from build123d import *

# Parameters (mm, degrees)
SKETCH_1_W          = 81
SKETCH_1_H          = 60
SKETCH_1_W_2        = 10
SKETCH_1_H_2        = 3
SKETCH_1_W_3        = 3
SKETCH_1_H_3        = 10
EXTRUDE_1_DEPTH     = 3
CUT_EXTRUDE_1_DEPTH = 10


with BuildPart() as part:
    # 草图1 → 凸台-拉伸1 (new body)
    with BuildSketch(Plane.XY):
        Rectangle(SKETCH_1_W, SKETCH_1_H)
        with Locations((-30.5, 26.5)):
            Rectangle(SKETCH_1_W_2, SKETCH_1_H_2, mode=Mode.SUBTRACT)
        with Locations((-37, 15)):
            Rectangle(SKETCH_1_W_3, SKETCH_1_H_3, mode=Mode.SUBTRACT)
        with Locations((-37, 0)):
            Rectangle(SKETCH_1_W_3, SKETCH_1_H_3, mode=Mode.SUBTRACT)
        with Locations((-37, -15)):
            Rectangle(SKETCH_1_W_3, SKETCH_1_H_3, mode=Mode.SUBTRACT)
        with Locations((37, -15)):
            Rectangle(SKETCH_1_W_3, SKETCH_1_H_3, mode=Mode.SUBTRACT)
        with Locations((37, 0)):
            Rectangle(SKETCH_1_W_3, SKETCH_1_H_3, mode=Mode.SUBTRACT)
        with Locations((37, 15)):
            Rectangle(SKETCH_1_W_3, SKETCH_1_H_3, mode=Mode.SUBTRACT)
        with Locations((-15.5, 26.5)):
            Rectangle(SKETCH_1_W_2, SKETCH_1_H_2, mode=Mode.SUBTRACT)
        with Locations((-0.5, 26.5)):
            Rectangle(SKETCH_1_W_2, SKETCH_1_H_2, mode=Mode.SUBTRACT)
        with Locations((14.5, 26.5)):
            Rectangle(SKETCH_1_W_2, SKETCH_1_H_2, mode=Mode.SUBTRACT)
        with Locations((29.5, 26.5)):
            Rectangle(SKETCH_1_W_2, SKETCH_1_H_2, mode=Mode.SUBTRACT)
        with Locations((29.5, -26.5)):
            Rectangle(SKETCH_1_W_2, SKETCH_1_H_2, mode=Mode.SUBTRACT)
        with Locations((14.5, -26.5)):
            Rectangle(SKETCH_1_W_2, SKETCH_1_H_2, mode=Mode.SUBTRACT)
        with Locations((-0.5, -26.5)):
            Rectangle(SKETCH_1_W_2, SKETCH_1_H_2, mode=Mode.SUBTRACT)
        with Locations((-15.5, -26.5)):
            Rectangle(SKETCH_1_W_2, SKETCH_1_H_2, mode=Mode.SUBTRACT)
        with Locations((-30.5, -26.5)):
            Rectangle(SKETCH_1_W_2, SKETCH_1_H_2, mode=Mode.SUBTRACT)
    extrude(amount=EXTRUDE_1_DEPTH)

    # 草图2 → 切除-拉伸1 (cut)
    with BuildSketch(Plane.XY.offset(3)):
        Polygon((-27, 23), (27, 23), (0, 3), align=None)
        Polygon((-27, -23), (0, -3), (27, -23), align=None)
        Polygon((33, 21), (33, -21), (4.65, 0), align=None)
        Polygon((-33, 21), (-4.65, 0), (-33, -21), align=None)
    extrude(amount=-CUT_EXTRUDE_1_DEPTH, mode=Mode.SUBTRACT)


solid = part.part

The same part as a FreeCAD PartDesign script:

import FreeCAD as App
import Part
import Sketcher

V = App.Vector
Q = App.Units.Quantity


def add_polygon(sketch, points):
    """Adds a closed chain of lines whose ends are joined by coincident constraints."""
    first, n = sketch.GeometryCount, len(points)
    for a, b in zip(points, points[1:] + points[:1]):
        sketch.addGeometry(Part.LineSegment(App.Vector(*a, 0), App.Vector(*b, 0)), False)
    for i in range(n):
        sketch.addConstraint(Sketcher.Constraint("Coincident", first + i, 2, first + (i + 1) % n, 1))

doc = App.newDocument("Part")
body = doc.addObject("PartDesign::Body", "Body")

# Sketch on XY plane
sketch1 = body.newObject("Sketcher::SketchObject", "Sketch")
sketch1.AttachmentSupport = (doc.getObject("XY_Plane"), [""])
sketch1.MapMode = "FlatFace"
add_polygon(sketch1, [(-40.5, 30), (-40.5, -30), (40.5, -30), (40.5, 30)])  # lines 0-3
add_polygon(sketch1, [(-25.5, -28), (-35.5, -28), (-35.5, -25), (-25.5, -25)])  # lines 4-7
add_polygon(sketch1, [(-35.5, -20), (-38.5, -20), (-38.5, -10), (-35.5, -10)])  # lines 8-11
add_polygon(sketch1, [(-10.5, -28), (-20.5, -28), (-20.5, -25), (-10.5, -25)])  # lines 12-15
add_polygon(sketch1, [(4.5, -28), (-5.5, -28), (-5.5, -25), (4.5, -25)])  # lines 16-19
add_polygon(sketch1, [(19.5, -28), (9.5, -28), (9.5, -25), (19.5, -25)])  # lines 20-23
add_polygon(sketch1, [(34.5, -28), (24.5, -28), (24.5, -25), (34.5, -25)])  # lines 24-27
add_polygon(sketch1, [(38.5, -20), (35.5, -20), (35.5, -10), (38.5, -10)])  # lines 28-31
add_polygon(sketch1, [(-35.5, -5), (-38.5, -5), (-38.5, 5), (-35.5, 5)])  # lines 32-35
add_polygon(sketch1, [(-35.5, 10), (-38.5, 10), (-38.5, 20), (-35.5, 20)])  # lines 36-39
add_polygon(sketch1, [(-25.5, 25), (-35.5, 25), (-35.5, 28), (-25.5, 28)])  # lines 40-43
add_polygon(sketch1, [(-10.5, 25), (-20.5, 25), (-20.5, 28), (-10.5, 28)])  # lines 44-47
add_polygon(sketch1, [(4.5, 25), (-5.5, 25), (-5.5, 28), (4.5, 28)])  # lines 48-51
add_polygon(sketch1, [(38.5, -5), (35.5, -5), (35.5, 5), (38.5, 5)])  # lines 52-55
add_polygon(sketch1, [(19.5, 25), (9.5, 25), (9.5, 28), (19.5, 28)])  # lines 56-59
add_polygon(sketch1, [(38.5, 10), (35.5, 10), (35.5, 20), (38.5, 20)])  # lines 60-63
add_polygon(sketch1, [(34.5, 25), (24.5, 25), (24.5, 28), (34.5, 28)])  # lines 64-67
sketch1.addConstraint([
    Sketcher.Constraint("Vertical", 0),
    Sketcher.Constraint("Horizontal", 1),
    Sketcher.Constraint("Vertical", 2),
    Sketcher.Constraint("Horizontal", 3),
    Sketcher.Constraint("Horizontal", 4),
    Sketcher.Constraint("Vertical", 5),
    Sketcher.Constraint("Horizontal", 6),
    Sketcher.Constraint("Vertical", 7),
    Sketcher.Constraint("Horizontal", 8),
    Sketcher.Constraint("Vertical", 9),
    Sketcher.Constraint("Horizontal", 10),
    Sketcher.Constraint("Vertical", 11),
    Sketcher.Constraint("Horizontal", 12),
    Sketcher.Constraint("Vertical", 13),
    Sketcher.Constraint("Horizontal", 14),
    Sketcher.Constraint("Vertical", 15),
    Sketcher.Constraint("Horizontal", 16),
    Sketcher.Constraint("Vertical", 17),
    Sketcher.Constraint("Horizontal", 18),
    Sketcher.Constraint("Vertical", 19),
    Sketcher.Constraint("Horizontal", 20),
    Sketcher.Constraint("Vertical", 21),
    Sketcher.Constraint("Horizontal", 22),
    Sketcher.Constraint("Vertical", 23),
    Sketcher.Constraint("Horizontal", 24),
    Sketcher.Constraint("Vertical", 25),
    Sketcher.Constraint("Horizontal", 26),
    Sketcher.Constraint("Vertical", 27),
    Sketcher.Constraint("Horizontal", 28),
    Sketcher.Constraint("Vertical", 29),
    Sketcher.Constraint("Horizontal", 30),
    Sketcher.Constraint("Vertical", 31),
    Sketcher.Constraint("Horizontal", 32),
    Sketcher.Constraint("Vertical", 33),
    Sketcher.Constraint("Horizontal", 34),
    Sketcher.Constraint("Vertical", 35),
    Sketcher.Constraint("Horizontal", 36),
    Sketcher.Constraint("Vertical", 37),
    Sketcher.Constraint("Horizontal", 38),
    Sketcher.Constraint("Vertical", 39),
    Sketcher.Constraint("Horizontal", 40),
    Sketcher.Constraint("Vertical", 41),
    Sketcher.Constraint("Horizontal", 42),
    Sketcher.Constraint("Vertical", 43),
    Sketcher.Constraint("Horizontal", 44),
    Sketcher.Constraint("Vertical", 45),
    Sketcher.Constraint("Horizontal", 46),
    Sketcher.Constraint("Vertical", 47),
    Sketcher.Constraint("Horizontal", 48),
    Sketcher.Constraint("Vertical", 49),
    Sketcher.Constraint("Horizontal", 50),
    Sketcher.Constraint("Vertical", 51),
    Sketcher.Constraint("Horizontal", 52),
    Sketcher.Constraint("Vertical", 53),
    Sketcher.Constraint("Horizontal", 54),
    Sketcher.Constraint("Vertical", 55),
    Sketcher.Constraint("Horizontal", 56),
    Sketcher.Constraint("Vertical", 57),
    Sketcher.Constraint("Horizontal", 58),
    Sketcher.Constraint("Vertical", 59),
    Sketcher.Constraint("Horizontal", 60),
    Sketcher.Constraint("Vertical", 61),
    Sketcher.Constraint("Horizontal", 62),
    Sketcher.Constraint("Vertical", 63),
    Sketcher.Constraint("Horizontal", 64),
    Sketcher.Constraint("Vertical", 65),
    Sketcher.Constraint("Horizontal", 66),
    Sketcher.Constraint("Vertical", 67),
    Sketcher.Constraint("Symmetric", 0, 2, 2, 2, -1, 1),
    Sketcher.Constraint("Symmetric", 30, 2, 36, 2, -1, 1),
    Sketcher.Constraint("Symmetric", 28, 2, 38, 2, -1, 1),
    Sketcher.Constraint("Symmetric", 34, 2, 52, 2, -1, 1),
    Sketcher.Constraint("Symmetric", 32, 2, 54, 2, -1, 1),
    Sketcher.Constraint("Symmetric", 10, 2, 60, 2, -1, 1),
    Sketcher.Constraint("Symmetric", 8, 2, 62, 2, -1, 1),
    Sketcher.Constraint("Symmetric", 11, 2, 28, 2, -2),
    Sketcher.Constraint("Symmetric", 9, 2, 30, 2, -2),
    Sketcher.Constraint("Symmetric", 5, 2, 40, 2, -1),
    Sketcher.Constraint("Symmetric", 7, 2, 42, 2, -1),
    Sketcher.Constraint("Symmetric", 13, 2, 44, 2, -1),
    Sketcher.Constraint("Symmetric", 15, 2, 46, 2, -1),
    Sketcher.Constraint("Symmetric", 17, 2, 48, 2, -1),
    Sketcher.Constraint("Symmetric", 19, 2, 50, 2, -1),
    Sketcher.Constraint("Symmetric", 21, 2, 56, 2, -1),
    Sketcher.Constraint("Symmetric", 23, 2, 58, 2, -1),
    Sketcher.Constraint("Symmetric", 25, 2, 64, 2, -1),
    Sketcher.Constraint("Symmetric", 27, 2, 66, 2, -1),
    Sketcher.Constraint("Horizontal", 7, 2, 12, 2),
    Sketcher.Constraint("Horizontal", 6, 2, 13, 2),
    Sketcher.Constraint("Horizontal", 15, 2, 16, 2),
    Sketcher.Constraint("Horizontal", 14, 2, 17, 2),
    Sketcher.Constraint("Horizontal", 19, 2, 20, 2),
    Sketcher.Constraint("Horizontal", 18, 2, 21, 2),
    Sketcher.Constraint("Horizontal", 23, 2, 24, 2),
    Sketcher.Constraint("Horizontal", 22, 2, 25, 2),
    Sketcher.Constraint("Horizontal", 35, 2, 52, 2),
    Sketcher.Constraint("Vertical", 5, 2, 10, 2),
    Sketcher.Constraint("Vertical", 9, 2, 32, 2),
    Sketcher.Constraint("Vertical", 11, 2, 34, 2),
    Sketcher.Constraint("Equal", 6, 12),
    Sketcher.Constraint("Equal", 14, 16),
    Sketcher.Constraint("Equal", 18, 20),
    Sketcher.Constraint("Equal", 22, 24),
    Sketcher.Constraint("Equal", 62, 5),
    Sketcher.Constraint("Equal", 66, 9),
    Sketcher.Constraint("Equal", 31, 33),
    Sketcher.Constraint("DistanceX", 1, 1, 1, 2, Q("81 mm")),
    Sketcher.Constraint("DistanceX", 4, 2, 4, 1, Q("10 mm")),
    Sketcher.Constraint("DistanceX", 8, 2, 8, 1, Q("3 mm")),
    Sketcher.Constraint("DistanceY", 0, 2, 0, 1, Q("60 mm")),
    Sketcher.Constraint("DistanceY", 4, 2, -1, 1, Q("28 mm")),
    Sketcher.Constraint("DistanceY", 8, 2, -1, 1, Q("20 mm")),
    Sketcher.Constraint("DistanceX", 4, 2, -1, 1, Q("35.5 mm")),
    Sketcher.Constraint("DistanceX", 12, 2, -1, 1, Q("20.5 mm")),
    Sketcher.Constraint("DistanceX", 16, 2, -1, 1, Q("5.5 mm")),
    Sketcher.Constraint("DistanceX", -1, 1, 20, 2, Q("9.5 mm")),
    Sketcher.Constraint("DistanceX", -1, 1, 24, 2, Q("24.5 mm")),
])
pad1 = body.newObject("PartDesign::Pad", "Pad")
pad1.Profile = sketch1
pad1.Length = 3

# Sketch on XY plane
sketch2 = body.newObject("Sketcher::SketchObject", "Sketch001")
sketch2.AttachmentSupport = (doc.getObject("XY_Plane"), [""])
sketch2.MapMode = "FlatFace"
sketch2.AttachmentOffset = App.Placement(V(0, 0, 3), App.Rotation())
add_polygon(sketch2, [(27, 23), (-27, 23), (0, 3)])  # lines 0-2
add_polygon(sketch2, [(0, -3), (-27, -23), (27, -23)])  # lines 3-5
add_polygon(sketch2, [(33, -21), (33, 21), (4.65, 0)])  # lines 6-8
add_polygon(sketch2, [(-4.65, 0), (-33, 21), (-33, -21)])  # lines 9-11
sketch2.addConstraint([
    Sketcher.Constraint("Horizontal", 0),
    Sketcher.Constraint("Horizontal", 4),
    Sketcher.Constraint("Vertical", 6),
    Sketcher.Constraint("Vertical", 10),
    Sketcher.Constraint("Symmetric", 2, 2, 3, 2, -1, 1),
    Sketcher.Constraint("Symmetric", 1, 2, 5, 2, -1, 1),
    Sketcher.Constraint("Symmetric", 8, 2, 9, 2, -1, 1),
    Sketcher.Constraint("Symmetric", 7, 2, 11, 2, -1, 1),
    Sketcher.Constraint("PointOnObject", 1, 2, -2),
    Sketcher.Constraint("PointOnObject", 7, 2, -1),
    Sketcher.Constraint("Parallel", 1, 5),
    Sketcher.Constraint("Parallel", 3, 7),
    Sketcher.Constraint("Parallel", 5, 8),
    Sketcher.Constraint("Parallel", 7, 11),
    Sketcher.Constraint("Horizontal", 6, 2, 9, 2),
    Sketcher.Constraint("DistanceX", 0, 2, 0, 1, Q("54 mm")),
    Sketcher.Constraint("DistanceY", 6, 1, 6, 2, Q("42 mm")),
    Sketcher.Constraint("DistanceY", -1, 1, 0, 2, Q("23 mm")),
    Sketcher.Constraint("DistanceY", -1, 1, 1, 2, Q("3 mm")),
    Sketcher.Constraint("DistanceX", -1, 1, 6, 2, Q("33 mm")),
])
pocket1 = body.newObject("PartDesign::Pocket", "Pocket")
pocket1.Profile = sketch2
pocket1.Length = 10

doc.recompute()
